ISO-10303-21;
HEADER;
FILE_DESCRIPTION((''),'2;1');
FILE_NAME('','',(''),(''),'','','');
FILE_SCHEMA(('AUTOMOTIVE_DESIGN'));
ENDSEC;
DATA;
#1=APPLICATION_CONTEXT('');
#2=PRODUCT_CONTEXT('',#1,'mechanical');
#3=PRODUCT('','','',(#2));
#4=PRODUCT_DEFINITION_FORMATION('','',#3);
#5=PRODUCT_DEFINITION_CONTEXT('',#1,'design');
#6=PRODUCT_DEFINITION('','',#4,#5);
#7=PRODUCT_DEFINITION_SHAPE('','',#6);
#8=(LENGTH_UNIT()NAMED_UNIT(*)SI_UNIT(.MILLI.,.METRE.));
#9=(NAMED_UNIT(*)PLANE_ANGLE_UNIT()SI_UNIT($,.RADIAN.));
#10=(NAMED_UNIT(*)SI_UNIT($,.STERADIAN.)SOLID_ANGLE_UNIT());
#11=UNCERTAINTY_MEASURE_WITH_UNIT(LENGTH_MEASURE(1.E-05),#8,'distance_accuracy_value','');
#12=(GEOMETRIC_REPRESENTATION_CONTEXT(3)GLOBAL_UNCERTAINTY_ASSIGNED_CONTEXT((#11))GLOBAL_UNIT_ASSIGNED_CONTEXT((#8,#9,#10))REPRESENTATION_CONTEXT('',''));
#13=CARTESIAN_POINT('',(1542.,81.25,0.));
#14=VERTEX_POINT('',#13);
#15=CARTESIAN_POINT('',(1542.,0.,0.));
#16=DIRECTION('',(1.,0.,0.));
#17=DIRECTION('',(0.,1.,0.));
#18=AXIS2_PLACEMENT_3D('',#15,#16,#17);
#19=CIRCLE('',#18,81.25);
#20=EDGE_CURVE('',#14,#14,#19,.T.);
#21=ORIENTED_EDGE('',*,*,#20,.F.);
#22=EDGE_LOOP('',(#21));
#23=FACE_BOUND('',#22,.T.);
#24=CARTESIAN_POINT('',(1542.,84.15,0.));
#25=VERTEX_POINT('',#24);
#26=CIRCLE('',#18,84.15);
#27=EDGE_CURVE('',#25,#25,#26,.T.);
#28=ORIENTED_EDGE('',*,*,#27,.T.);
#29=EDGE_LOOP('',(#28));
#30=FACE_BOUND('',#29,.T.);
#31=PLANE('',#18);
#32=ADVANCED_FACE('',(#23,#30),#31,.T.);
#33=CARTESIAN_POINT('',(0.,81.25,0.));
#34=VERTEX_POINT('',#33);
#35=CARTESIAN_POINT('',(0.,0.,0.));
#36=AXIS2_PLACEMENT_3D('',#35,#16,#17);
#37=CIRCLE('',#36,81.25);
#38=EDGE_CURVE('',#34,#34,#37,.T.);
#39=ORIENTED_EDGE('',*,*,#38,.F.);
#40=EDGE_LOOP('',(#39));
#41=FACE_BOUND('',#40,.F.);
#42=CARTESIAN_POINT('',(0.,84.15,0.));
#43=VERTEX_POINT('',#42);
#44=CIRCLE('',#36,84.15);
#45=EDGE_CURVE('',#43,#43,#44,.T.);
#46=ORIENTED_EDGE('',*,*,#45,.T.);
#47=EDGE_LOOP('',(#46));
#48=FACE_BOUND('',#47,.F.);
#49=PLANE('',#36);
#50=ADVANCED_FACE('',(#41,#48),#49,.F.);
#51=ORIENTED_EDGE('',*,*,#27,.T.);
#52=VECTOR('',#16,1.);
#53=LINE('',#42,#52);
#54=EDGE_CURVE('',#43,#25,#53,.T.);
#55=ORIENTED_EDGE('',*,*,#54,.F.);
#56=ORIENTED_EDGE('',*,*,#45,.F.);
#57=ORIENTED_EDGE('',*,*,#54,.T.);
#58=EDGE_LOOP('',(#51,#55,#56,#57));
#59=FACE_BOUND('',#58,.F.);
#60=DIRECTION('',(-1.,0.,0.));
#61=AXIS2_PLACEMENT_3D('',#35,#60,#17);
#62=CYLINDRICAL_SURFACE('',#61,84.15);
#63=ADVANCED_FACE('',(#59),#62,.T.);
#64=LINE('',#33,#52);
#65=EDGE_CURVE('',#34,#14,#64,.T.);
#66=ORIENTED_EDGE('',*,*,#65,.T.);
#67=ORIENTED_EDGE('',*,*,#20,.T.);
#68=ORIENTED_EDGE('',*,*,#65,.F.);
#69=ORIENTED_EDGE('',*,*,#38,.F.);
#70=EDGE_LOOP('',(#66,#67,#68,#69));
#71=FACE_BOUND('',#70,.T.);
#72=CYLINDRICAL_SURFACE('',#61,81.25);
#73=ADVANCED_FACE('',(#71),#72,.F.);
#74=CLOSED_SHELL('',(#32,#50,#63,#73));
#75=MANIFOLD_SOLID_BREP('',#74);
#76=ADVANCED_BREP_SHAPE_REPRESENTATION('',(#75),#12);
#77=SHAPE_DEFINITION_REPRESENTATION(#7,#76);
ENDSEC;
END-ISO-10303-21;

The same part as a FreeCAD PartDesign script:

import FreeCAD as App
import Part
import Sketcher
Q = App.Units.Quantity

doc = App.newDocument("Part")
body = doc.addObject("PartDesign::Body", "Body")

# Sketch on YZ plane
sketch1 = body.newObject("Sketcher::SketchObject", "Sketch")
sketch1.AttachmentSupport = (doc.getObject("YZ_Plane"), [""])
sketch1.MapMode = "FlatFace"
sketch1.addGeometry([
    Part.Circle(App.Vector(0, 0, 0), App.Vector(0, 0, 1), 84),
    Part.Circle(App.Vector(0, 0, 0), App.Vector(0, 0, 1), 81),
], False)
sketch1.addConstraint([
    Sketcher.Constraint("Coincident", 0, 3, -1, 1),
    Sketcher.Constraint("Coincident", 1, 3, -1, 1),
    Sketcher.Constraint("Diameter", 0, Q("168.3 mm")),
    Sketcher.Constraint("Diameter", 1, Q("162.5 mm")),
])
pad1 = body.newObject("PartDesign::Pad", "Pad")
pad1.Profile = sketch1
pad1.Length = 1542

doc.recompute()
